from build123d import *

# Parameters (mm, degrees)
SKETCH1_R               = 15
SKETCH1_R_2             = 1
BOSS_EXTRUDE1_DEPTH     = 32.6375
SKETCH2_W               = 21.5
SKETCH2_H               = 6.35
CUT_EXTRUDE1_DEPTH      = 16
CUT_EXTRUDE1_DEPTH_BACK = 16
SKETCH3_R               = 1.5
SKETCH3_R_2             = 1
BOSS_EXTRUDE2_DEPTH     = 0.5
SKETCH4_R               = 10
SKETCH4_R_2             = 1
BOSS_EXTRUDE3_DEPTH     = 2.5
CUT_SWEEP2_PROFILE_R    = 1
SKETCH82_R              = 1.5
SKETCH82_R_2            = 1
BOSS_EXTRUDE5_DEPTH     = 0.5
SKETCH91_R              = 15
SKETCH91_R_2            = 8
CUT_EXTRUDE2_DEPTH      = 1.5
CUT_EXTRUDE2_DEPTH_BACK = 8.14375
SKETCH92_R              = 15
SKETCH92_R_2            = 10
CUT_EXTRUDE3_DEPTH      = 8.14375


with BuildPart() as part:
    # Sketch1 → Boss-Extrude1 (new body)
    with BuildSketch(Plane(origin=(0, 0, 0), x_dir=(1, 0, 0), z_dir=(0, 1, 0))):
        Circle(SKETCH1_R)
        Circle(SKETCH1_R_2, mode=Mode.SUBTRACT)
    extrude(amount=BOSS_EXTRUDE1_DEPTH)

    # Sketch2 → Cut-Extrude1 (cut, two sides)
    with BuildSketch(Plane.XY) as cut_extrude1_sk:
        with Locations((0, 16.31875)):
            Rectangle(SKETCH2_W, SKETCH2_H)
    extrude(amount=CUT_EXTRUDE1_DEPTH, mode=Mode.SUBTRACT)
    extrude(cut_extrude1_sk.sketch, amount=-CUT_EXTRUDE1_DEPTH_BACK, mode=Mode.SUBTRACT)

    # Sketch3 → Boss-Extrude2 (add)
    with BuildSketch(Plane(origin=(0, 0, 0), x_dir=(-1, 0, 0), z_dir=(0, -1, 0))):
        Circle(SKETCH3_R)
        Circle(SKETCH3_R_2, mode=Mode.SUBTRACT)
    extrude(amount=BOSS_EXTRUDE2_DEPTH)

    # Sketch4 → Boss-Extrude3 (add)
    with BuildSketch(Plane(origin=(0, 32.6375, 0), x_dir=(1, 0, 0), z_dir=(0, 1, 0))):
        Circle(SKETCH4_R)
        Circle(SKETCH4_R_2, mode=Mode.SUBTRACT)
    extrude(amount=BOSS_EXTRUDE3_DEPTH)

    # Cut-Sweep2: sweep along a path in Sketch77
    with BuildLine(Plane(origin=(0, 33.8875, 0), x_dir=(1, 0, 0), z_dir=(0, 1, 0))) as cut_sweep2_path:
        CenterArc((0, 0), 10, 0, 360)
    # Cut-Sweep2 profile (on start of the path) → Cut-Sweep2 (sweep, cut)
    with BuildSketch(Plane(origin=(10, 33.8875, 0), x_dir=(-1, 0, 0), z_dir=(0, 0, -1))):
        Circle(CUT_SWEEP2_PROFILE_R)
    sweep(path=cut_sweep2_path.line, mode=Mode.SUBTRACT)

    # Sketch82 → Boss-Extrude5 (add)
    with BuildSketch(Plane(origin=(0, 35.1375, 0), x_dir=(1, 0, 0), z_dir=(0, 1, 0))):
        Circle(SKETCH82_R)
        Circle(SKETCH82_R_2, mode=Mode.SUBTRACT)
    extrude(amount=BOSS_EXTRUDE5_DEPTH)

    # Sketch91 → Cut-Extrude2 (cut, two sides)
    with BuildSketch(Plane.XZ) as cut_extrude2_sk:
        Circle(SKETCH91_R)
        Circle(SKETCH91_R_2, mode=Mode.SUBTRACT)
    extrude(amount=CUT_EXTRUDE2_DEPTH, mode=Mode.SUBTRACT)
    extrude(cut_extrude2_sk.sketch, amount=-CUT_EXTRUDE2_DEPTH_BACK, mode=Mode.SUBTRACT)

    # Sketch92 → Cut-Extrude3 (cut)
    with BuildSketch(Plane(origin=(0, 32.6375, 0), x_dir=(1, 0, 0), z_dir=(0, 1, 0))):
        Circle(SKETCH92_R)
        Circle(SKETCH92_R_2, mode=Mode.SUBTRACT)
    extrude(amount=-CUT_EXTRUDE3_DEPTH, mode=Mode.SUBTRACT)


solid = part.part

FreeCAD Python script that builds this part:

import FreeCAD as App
import Part
import Sketcher

V = App.Vector
Q = App.Units.Quantity


def add_polygon(sketch, points):
    """Adds a closed chain of lines whose ends are joined by coincident constraints."""
    first, n = sketch.GeometryCount, len(points)
    for a, b in zip(points, points[1:] + points[:1]):
        sketch.addGeometry(Part.LineSegment(App.Vector(*a, 0), App.Vector(*b, 0)), False)
    for i in range(n):
        sketch.addConstraint(Sketcher.Constraint("Coincident", first + i, 2, first + (i + 1) % n, 1))

doc = App.newDocument("Part")
body = doc.addObject("PartDesign::Body", "Body")

# Sketch on XZ plane
sketch1 = body.newObject("Sketcher::SketchObject", "Sketch")
sketch1.AttachmentSupport = (doc.getObject("XZ_Plane"), [""])
sketch1.MapMode = "FlatFace"
sketch1.addGeometry(Part.Circle(V(0, 0, 0), V(0, 0, 1), 15), False)
sketch1.addGeometry(Part.Circle(V(0, 0, 0), V(0, 0, 1), 1), False)
sketch1.addConstraint(Sketcher.Constraint("Coincident", 0, 3, -1, 1))
sketch1.addConstraint(Sketcher.Constraint("Coincident", 1, 3, -1, 1))
sketch1.addConstraint(Sketcher.Constraint("Diameter", 0, Q("30 mm")))
sketch1.addConstraint(Sketcher.Constraint("Diameter", 1, Q("2 mm")))
pad1 = body.newObject("PartDesign::Pad", "Pad")
pad1.Profile = sketch1
pad1.Length = 32.6375
pad1.Reversed = True

# Sketch on XY plane
sketch2 = body.newObject("Sketcher::SketchObject", "Sketch001")
sketch2.AttachmentSupport = (doc.getObject("XY_Plane"), [""])
sketch2.MapMode = "FlatFace"
add_polygon(sketch2, [(-11, 19), (-11, 13), (11, 13), (11, 19)])  # lines 0-3
sketch2.addConstraint(Sketcher.Constraint("Vertical", 0))
sketch2.addConstraint(Sketcher.Constraint("Horizontal", 1))
sketch2.addConstraint(Sketcher.Constraint("Vertical", 2))
sketch2.addConstraint(Sketcher.Constraint("Horizontal", 3))
sketch2.addConstraint(Sketcher.Constraint("DistanceX", 1, 1, 1, 2, Q("21.5 mm")))
sketch2.addConstraint(Sketcher.Constraint("DistanceY", 0, 2, 0, 1, Q("6.35 mm")))
sketch2.addConstraint(Sketcher.Constraint("DistanceX", 0, 2, -1, 1, Q("10.75 mm")))
sketch2.addConstraint(Sketcher.Constraint("DistanceY", -1, 1, 0, 2, Q("13.14375 mm")))
pocket1 = body.newObject("PartDesign::Pocket", "Pocket")
pocket1.Profile = sketch2
pocket1.Type = "ThroughAll"
pocket1.Midplane = True

# Sketch on XZ plane
sketch3 = body.newObject("Sketcher::SketchObject", "Sketch002")
sketch3.AttachmentSupport = (doc.getObject("XZ_Plane"), [""])
sketch3.MapMode = "FlatFace"
sketch3.addGeometry(Part.Circle(V(0, 0, 0), V(0, 0, 1), 1.5), False)
sketch3.addGeometry(Part.Circle(V(0, 0, 0), V(0, 0, 1), 1), False)
sketch3.addConstraint(Sketcher.Constraint("Coincident", 0, 3, -1, 1))
sketch3.addConstraint(Sketcher.Constraint("Coincident", 1, 3, -1, 1))
sketch3.addConstraint(Sketcher.Constraint("Diameter", 0, Q("3 mm")))
sketch3.addConstraint(Sketcher.Constraint("Diameter", 1, Q("2 mm")))
pad2 = body.newObject("PartDesign::Pad", "Pad001")
pad2.Profile = sketch3
pad2.Length = 0.5

# Sketch on XZ plane
sketch4 = body.newObject("Sketcher::SketchObject", "Sketch003")
sketch4.AttachmentSupport = (doc.getObject("XZ_Plane"), [""])
sketch4.MapMode = "FlatFace"
sketch4.AttachmentOffset = App.Placement(V(0, 0, -32.6375), App.Rotation())
sketch4.addGeometry(Part.Circle(V(0, 0, 0), V(0, 0, 1), 10), False)
sketch4.addGeometry(Part.Circle(V(0, 0, 0), V(0, 0, 1), 1), False)
sketch4.addConstraint(Sketcher.Constraint("Coincident", 0, 3, -1, 1))
sketch4.addConstraint(Sketcher.Constraint("Coincident", 1, 3, -1, 1))
sketch4.addConstraint(Sketcher.Constraint("Diameter", 0, Q("20 mm")))
sketch4.addConstraint(Sketcher.Constraint("Diameter", 1, Q("2 mm")))
pad3 = body.newObject("PartDesign::Pad", "Pad002")
pad3.Profile = sketch4
pad3.Length = 2.5
pad3.Reversed = True

# Sketch on XY plane
sketch5 = body.newObject("Sketcher::SketchObject", "Sketch004")
sketch5.AttachmentSupport = (doc.getObject("XY_Plane"), [""])
sketch5.MapMode = "FlatFace"
sketch5.addGeometry(Part.Circle(V(10, 33.9, 0), V(0, 0, 1), 1), False)
sketch5.addConstraint(Sketcher.Constraint("Diameter", 0, Q("2 mm")))
sketch5.addConstraint(Sketcher.Constraint("DistanceX", -1, 1, 0, 3, Q("10 mm")))
sketch5.addConstraint(Sketcher.Constraint("DistanceY", -1, 1, 0, 3, Q("33.8875 mm")))

# Sketch on XZ plane
sketch6 = body.newObject("Sketcher::SketchObject", "Sketch005")
sketch6.AttachmentSupport = (doc.getObject("XZ_Plane"), [""])
sketch6.MapMode = "FlatFace"
sketch6.AttachmentOffset = App.Placement(V(0, 0, -33.8875), App.Rotation())
sketch6.addGeometry(Part.Circle(V(0, 0, 0), V(0, 0, 1), 10), False)
sketch6.addConstraint(Sketcher.Constraint("Coincident", 0, 3, -1, 1))
sketch6.addConstraint(Sketcher.Constraint("Diameter", 0, Q("20 mm")))
doc.recompute()

subtractivepipe = body.newObject("PartDesign::SubtractivePipe", "SubtractivePipe")
subtractivepipe.Profile = sketch5
subtractivepipe.Spine = (sketch6, ["Edge1"])

# Sketch on XZ plane
sketch7 = body.newObject("Sketcher::SketchObject", "Sketch006")
sketch7.AttachmentSupport = (doc.getObject("XZ_Plane"), [""])
sketch7.MapMode = "FlatFace"
sketch7.AttachmentOffset = App.Placement(V(0, 0, -35.1375), App.Rotation())
sketch7.addGeometry(Part.Circle(V(0, 0, 0), V(0, 0, 1), 1.5), False)
sketch7.addGeometry(Part.Circle(V(0, 0, 0), V(0, 0, 1), 1), False)
sketch7.addConstraint(Sketcher.Constraint("Coincident", 0, 3, -1, 1))
sketch7.addConstraint(Sketcher.Constraint("Coincident", 1, 3, -1, 1))
sketch7.addConstraint(Sketcher.Constraint("Diameter", 0, Q("3 mm")))
sketch7.addConstraint(Sketcher.Constraint("Diameter", 1, Q("2 mm")))
pad4 = body.newObject("PartDesign::Pad", "Pad003")
pad4.Profile = sketch7
pad4.Length = 0.5
pad4.Reversed = True

# Sketch on XZ plane
sketch8 = body.newObject("Sketcher::SketchObject", "Sketch007")
sketch8.AttachmentSupport = (doc.getObject("XZ_Plane"), [""])
sketch8.MapMode = "FlatFace"
sketch8.addGeometry(Part.Circle(V(0, 0, 0), V(0, 0, 1), 15), False)
sketch8.addGeometry(Part.Circle(V(0, 0, 0), V(0, 0, 1), 8), False)
sketch8.addConstraint(Sketcher.Constraint("Coincident", 0, 3, -1, 1))
sketch8.addConstraint(Sketcher.Constraint("Coincident", 1, 3, -1, 1))
sketch8.addConstraint(Sketcher.Constraint("Diameter", 0, Q("30 mm")))
sketch8.addConstraint(Sketcher.Constraint("Diameter", 1, Q("16 mm")))
pocket2 = body.newObject("PartDesign::Pocket", "Pocket001")
pocket2.Profile = sketch8
pocket2.Type = "TwoLengths"
pocket2.Length = 1.5
pocket2.Length2 = 8.14375
pocket2.Reversed = True

# Sketch on XZ plane
sketch9 = body.newObject("Sketcher::SketchObject", "Sketch008")
sketch9.AttachmentSupport = (doc.getObject("XZ_Plane"), [""])
sketch9.MapMode = "FlatFace"
sketch9.AttachmentOffset = App.Placement(V(0, 0, -32.6375), App.Rotation())
sketch9.addGeometry(Part.Circle(V(0, 0, 0), V(0, 0, 1), 15), False)
sketch9.addGeometry(Part.Circle(V(0, 0, 0), V(0, 0, 1), 10), False)
sketch9.addConstraint(Sketcher.Constraint("Coincident", 0, 3, -1, 1))
sketch9.addConstraint(Sketcher.Constraint("Coincident", 1, 3, -1, 1))
sketch9.addConstraint(Sketcher.Constraint("Diameter", 0, Q("30 mm")))
sketch9.addConstraint(Sketcher.Constraint("Diameter", 1, Q("20 mm")))
pocket3 = body.newObject("PartDesign::Pocket", "Pocket002")
pocket3.Profile = sketch9
pocket3.Length = 8.14375
pocket3.Reversed = True

doc.recompute()
